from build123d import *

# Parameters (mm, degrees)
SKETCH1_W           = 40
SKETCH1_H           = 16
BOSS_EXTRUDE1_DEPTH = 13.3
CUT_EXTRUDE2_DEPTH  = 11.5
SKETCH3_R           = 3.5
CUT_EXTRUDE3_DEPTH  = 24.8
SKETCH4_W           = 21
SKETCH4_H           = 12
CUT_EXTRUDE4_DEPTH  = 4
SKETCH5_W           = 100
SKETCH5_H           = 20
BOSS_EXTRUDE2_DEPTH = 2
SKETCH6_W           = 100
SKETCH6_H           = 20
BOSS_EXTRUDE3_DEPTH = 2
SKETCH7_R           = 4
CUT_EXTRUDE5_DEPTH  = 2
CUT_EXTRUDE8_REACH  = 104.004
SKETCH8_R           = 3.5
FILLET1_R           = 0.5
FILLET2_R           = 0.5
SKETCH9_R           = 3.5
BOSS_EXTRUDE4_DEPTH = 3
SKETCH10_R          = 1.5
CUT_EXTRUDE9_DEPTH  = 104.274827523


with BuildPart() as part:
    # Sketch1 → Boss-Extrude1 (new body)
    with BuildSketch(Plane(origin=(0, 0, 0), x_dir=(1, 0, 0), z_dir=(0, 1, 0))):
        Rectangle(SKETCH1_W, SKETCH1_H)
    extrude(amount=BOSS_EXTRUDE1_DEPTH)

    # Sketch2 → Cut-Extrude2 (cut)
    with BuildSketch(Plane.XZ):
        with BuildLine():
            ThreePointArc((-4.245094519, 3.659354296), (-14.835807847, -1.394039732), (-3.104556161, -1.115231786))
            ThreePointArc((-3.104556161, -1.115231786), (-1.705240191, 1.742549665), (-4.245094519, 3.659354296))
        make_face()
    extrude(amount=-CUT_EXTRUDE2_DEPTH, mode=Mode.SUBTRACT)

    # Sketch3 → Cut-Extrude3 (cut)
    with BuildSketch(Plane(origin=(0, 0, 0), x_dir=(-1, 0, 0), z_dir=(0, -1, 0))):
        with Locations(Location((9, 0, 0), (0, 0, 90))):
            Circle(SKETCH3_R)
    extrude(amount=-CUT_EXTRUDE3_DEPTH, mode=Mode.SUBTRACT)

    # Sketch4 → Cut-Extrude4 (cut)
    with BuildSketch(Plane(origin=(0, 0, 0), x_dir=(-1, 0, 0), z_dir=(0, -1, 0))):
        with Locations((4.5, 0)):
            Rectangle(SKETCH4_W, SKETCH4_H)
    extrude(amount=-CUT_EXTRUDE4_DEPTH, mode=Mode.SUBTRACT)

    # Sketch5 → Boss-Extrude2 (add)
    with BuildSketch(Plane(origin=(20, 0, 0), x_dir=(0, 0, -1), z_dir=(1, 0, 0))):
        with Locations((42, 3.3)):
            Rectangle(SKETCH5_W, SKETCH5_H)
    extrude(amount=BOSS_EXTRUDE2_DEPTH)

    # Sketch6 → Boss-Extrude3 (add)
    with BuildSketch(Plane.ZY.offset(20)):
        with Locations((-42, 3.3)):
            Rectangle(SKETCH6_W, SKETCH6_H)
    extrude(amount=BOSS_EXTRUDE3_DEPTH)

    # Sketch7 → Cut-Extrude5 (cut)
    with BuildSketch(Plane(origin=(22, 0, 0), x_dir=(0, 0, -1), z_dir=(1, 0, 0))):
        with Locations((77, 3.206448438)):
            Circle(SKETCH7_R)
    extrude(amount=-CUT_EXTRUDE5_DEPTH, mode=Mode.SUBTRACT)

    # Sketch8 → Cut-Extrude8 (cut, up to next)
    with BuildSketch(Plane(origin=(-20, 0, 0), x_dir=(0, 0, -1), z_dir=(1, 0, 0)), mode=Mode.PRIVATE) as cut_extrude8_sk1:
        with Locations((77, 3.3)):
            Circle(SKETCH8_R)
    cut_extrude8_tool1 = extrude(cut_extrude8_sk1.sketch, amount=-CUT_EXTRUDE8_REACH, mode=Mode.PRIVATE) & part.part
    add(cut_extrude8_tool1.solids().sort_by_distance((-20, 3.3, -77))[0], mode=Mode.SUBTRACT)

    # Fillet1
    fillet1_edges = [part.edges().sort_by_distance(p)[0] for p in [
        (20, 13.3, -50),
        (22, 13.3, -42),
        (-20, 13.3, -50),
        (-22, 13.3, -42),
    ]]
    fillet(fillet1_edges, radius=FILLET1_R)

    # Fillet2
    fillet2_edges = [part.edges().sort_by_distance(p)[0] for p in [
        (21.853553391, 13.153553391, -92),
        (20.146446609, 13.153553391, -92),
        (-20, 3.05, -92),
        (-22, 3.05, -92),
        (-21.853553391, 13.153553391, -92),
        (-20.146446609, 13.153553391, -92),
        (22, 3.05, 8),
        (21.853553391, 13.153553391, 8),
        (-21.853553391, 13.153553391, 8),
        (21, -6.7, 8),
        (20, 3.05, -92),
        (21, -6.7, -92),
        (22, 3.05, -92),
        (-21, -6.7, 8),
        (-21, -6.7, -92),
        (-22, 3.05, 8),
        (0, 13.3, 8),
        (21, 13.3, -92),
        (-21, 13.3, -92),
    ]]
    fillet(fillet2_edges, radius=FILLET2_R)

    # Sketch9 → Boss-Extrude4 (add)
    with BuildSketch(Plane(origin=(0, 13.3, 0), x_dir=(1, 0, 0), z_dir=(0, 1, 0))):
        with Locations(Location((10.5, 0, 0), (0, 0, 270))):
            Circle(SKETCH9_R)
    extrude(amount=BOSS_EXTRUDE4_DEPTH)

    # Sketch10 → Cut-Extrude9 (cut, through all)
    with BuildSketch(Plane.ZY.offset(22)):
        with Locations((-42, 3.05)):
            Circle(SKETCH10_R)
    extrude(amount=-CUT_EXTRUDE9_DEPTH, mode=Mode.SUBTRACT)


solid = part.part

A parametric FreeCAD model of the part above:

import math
import FreeCAD as App
import Part
import Sketcher


def edges_at(feature, points):
    """Names of the edges that pass closest to the given points."""
    edges = feature.Shape.Edges
    near = lambda p: min(range(len(edges)), key=lambda i: edges[i].distToShape(Part.Vertex(*p))[0])
    return sorted({f"Edge{near(p) + 1}" for p in points})


def add_polygon(sketch, points):
    """Adds a closed chain of lines whose ends are joined by coincident constraints."""
    first, n = sketch.GeometryCount, len(points)
    for a, b in zip(points, points[1:] + points[:1]):
        sketch.addGeometry(Part.LineSegment(App.Vector(*a, 0), App.Vector(*b, 0)), False)
    for i in range(n):
        sketch.addConstraint(Sketcher.Constraint("Coincident", first + i, 2, first + (i + 1) % n, 1))

doc = App.newDocument("Part")
body = doc.addObject("PartDesign::Body", "Body")

# Sketch on XZ plane
sketch1 = doc.addObject("Sketcher::SketchObject", "Sketch")
body.addObject(sketch1)
sketch1.AttachmentSupport = (doc.XZ_Plane, [""])
sketch1.MapMode = "FlatFace"
add_polygon(sketch1, [(-20, -8), (-20, 8), (20, 8), (20, -8)])  # lines 0-3
sketch1.addConstraint([
    Sketcher.Constraint("Vertical", 0),
    Sketcher.Constraint("Horizontal", 1),
    Sketcher.Constraint("Vertical", 2),
    Sketcher.Constraint("Horizontal", 3),
    Sketcher.Constraint("Symmetric", 0, 2, 2, 2, -1, 1),
    Sketcher.Constraint("DistanceX", 1, 1, 1, 2, 40.0),
    Sketcher.Constraint("DistanceY", 0, 1, 0, 2, 16.0),
])
pad1 = doc.addObject("PartDesign::Pad", "Pad")
body.addObject(pad1)
pad1.Profile = sketch1
pad1.Length = 13.3
pad1.Reversed = True

# Sketch on XZ plane
sketch2 = doc.addObject("Sketcher::SketchObject", "Sketch001")
body.addObject(sketch2)
sketch2.AttachmentSupport = (doc.XZ_Plane, [""])
sketch2.MapMode = "FlatFace"
sketch2.addGeometry([
    Part.ArcOfCircle(Part.Circle(App.Vector(-9, 0, 0), App.Vector(0, 0, 1), 6), math.radians(38), math.radians(349)),
    Part.ArcOfCircle(Part.Circle(App.Vector(-4.1, 1.2, 0), App.Vector(0, 0, 1), 2.5), math.radians(-66), math.radians(92)),
], False)
sketch2.addConstraint([
    Sketcher.Constraint("Coincident", 0, 1, 1, 2),
    Sketcher.Constraint("Coincident", 1, 1, 0, 2),
    Sketcher.Constraint("PointOnObject", 0, 3, -1),
    Sketcher.Constraint("Radius", 0, 6.0),
    Sketcher.Constraint("Radius", 1, 2.5),
    Sketcher.Constraint("DistanceX", 0, 3, -1, 1, 9.0),
    Sketcher.Constraint("DistanceY", -1, 1, 1, 3, 1.1617),
    Sketcher.Constraint("DistanceY", 1, 1, -1, 1, 1.115232),
])
pocket1 = doc.addObject("PartDesign::Pocket", "Pocket")
body.addObject(pocket1)
pocket1.Profile = sketch2
pocket1.Length = 11.5

# Sketch on XZ plane
sketch3 = doc.addObject("Sketcher::SketchObject", "Sketch002")
body.addObject(sketch3)
sketch3.AttachmentSupport = (doc.XZ_Plane, [""])
sketch3.MapMode = "FlatFace"
sketch3.addGeometry(Part.Circle(App.Vector(-9, 0, 0), App.Vector(0, 0, 1), 3.5), False)
sketch3.addConstraint([
    Sketcher.Constraint("PointOnObject", 0, 3, -1),
    Sketcher.Constraint("Diameter", 0, 7.0),
    Sketcher.Constraint("DistanceX", 0, 3, -1, 1, 9.0),
])
pocket2 = doc.addObject("PartDesign::Pocket", "Pocket001")
body.addObject(pocket2)
pocket2.Profile = sketch3
pocket2.Length = 24.8

# Sketch on XZ plane
sketch4 = doc.addObject("Sketcher::SketchObject", "Sketch003")
body.addObject(sketch4)
sketch4.AttachmentSupport = (doc.XZ_Plane, [""])
sketch4.MapMode = "FlatFace"
add_polygon(sketch4, [(6, -6), (6, 6), (-15, 6), (-15, -6)])  # lines 0-3
sketch4.addConstraint([
    Sketcher.Constraint("Vertical", 0),
    Sketcher.Constraint("Horizontal", 1),
    Sketcher.Constraint("Vertical", 2),
    Sketcher.Constraint("Horizontal", 3),
    Sketcher.Constraint("DistanceX", 1, 2, 1, 1, 21.0),
    Sketcher.Constraint("DistanceY", 0, 1, 0, 2, 12.0),
    Sketcher.Constraint("DistanceX", -1, 1, 0, 2, 6.0),
    Sketcher.Constraint("DistanceY", -1, 1, 0, 2, 6.0),
])
pocket3 = doc.addObject("PartDesign::Pocket", "Pocket002")
body.addObject(pocket3)
pocket3.Profile = sketch4
pocket3.Length = 4

# Sketch on YZ plane
sketch5 = doc.addObject("Sketcher::SketchObject", "Sketch004")
body.addObject(sketch5)
sketch5.AttachmentSupport = (doc.YZ_Plane, [""])
sketch5.MapMode = "FlatFace"
sketch5.AttachmentOffset = App.Placement(App.Vector(0, 0, 20), App.Rotation())
add_polygon(sketch5, [(13, 8), (-7, 8), (-7, -92), (13, -92)])  # lines 0-3
sketch5.addConstraint([
    Sketcher.Constraint("Horizontal", 0),
    Sketcher.Constraint("Vertical", 1),
    Sketcher.Constraint("Horizontal", 2),
    Sketcher.Constraint("Vertical", 3),
    Sketcher.Constraint("DistanceX", 0, 2, 0, 1, 20.0),
    Sketcher.Constraint("DistanceY", 1, 2, 1, 1, 100.0),
    Sketcher.Constraint("DistanceY", -1, 1, 0, 2, 8.0),
    Sketcher.Constraint("DistanceX", 0, 2, -1, 1, 6.7),
])
pad2 = doc.addObject("PartDesign::Pad", "Pad001")
body.addObject(pad2)
pad2.Profile = sketch5
pad2.Length = 2

# Sketch on YZ plane
sketch6 = doc.addObject("Sketcher::SketchObject", "Sketch005")
body.addObject(sketch6)
sketch6.AttachmentSupport = (doc.YZ_Plane, [""])
sketch6.MapMode = "FlatFace"
sketch6.AttachmentOffset = App.Placement(App.Vector(0, 0, -20), App.Rotation())
add_polygon(sketch6, [(13, -92), (-7, -92), (-7, 8), (13, 8)])  # lines 0-3
sketch6.addConstraint([
    Sketcher.Constraint("Horizontal", 0),
    Sketcher.Constraint("Vertical", 1),
    Sketcher.Constraint("Horizontal", 2),
    Sketcher.Constraint("Vertical", 3),
    Sketcher.Constraint("DistanceX", 0, 2, 0, 1, 20.0),
    Sketcher.Constraint("DistanceY", 1, 1, 1, 2, 100.0),
    Sketcher.Constraint("DistanceY", 0, 2, -1, 1, 92.0),
    Sketcher.Constraint("DistanceX", 0, 2, -1, 1, 6.7),
])
pad3 = doc.addObject("PartDesign::Pad", "Pad002")
body.addObject(pad3)
pad3.Profile = sketch6
pad3.Length = 2
pad3.Reversed = True

# Sketch on YZ plane
sketch7 = doc.addObject("Sketcher::SketchObject", "Sketch006")
body.addObject(sketch7)
sketch7.AttachmentSupport = (doc.YZ_Plane, [""])
sketch7.MapMode = "FlatFace"
sketch7.AttachmentOffset = App.Placement(App.Vector(0, 0, 22), App.Rotation())
sketch7.addGeometry(Part.Circle(App.Vector(3.2, -77, 0), App.Vector(0, 0, 1), 4), False)
sketch7.addConstraint([
    Sketcher.Constraint("Diameter", 0, 8.0),
    Sketcher.Constraint("DistanceY", 0, 3, -1, 1, 77.0),
    Sketcher.Constraint("DistanceX", -1, 1, 0, 3, 3.206448),
])
pocket4 = doc.addObject("PartDesign::Pocket", "Pocket003")
body.addObject(pocket4)
pocket4.Profile = sketch7
pocket4.Length = 2

# Sketch on YZ plane
sketch8 = doc.addObject("Sketcher::SketchObject", "Sketch007")
body.addObject(sketch8)
sketch8.AttachmentSupport = (doc.YZ_Plane, [""])
sketch8.MapMode = "FlatFace"
sketch8.AttachmentOffset = App.Placement(App.Vector(0, 0, -20), App.Rotation())
sketch8.addGeometry(Part.Circle(App.Vector(3.3, -77, 0), App.Vector(0, 0, 1), 3.5), False)
sketch8.addConstraint([
    Sketcher.Constraint("Diameter", 0, 7.0),
    Sketcher.Constraint("DistanceY", 0, 3, -1, 1, 77.0),
    Sketcher.Constraint("DistanceX", -1, 1, 0, 3, 3.3),
])
pocket5 = doc.addObject("PartDesign::Pocket", "Pocket004")
body.addObject(pocket5)
pocket5.Profile = sketch8
pocket5.Type = "UpToFirst"
doc.recompute()

fillet = doc.addObject("PartDesign::Fillet", "Fillet")
body.addObject(fillet)
fillet.Base = (pocket5, edges_at(pocket5, [
    (20, 13.3, -50),
    (22, 13.3, -42),
    (-20, 13.3, -50),
    (-22, 13.3, -42),
]))
fillet.Radius = 0.5
doc.recompute()

fillet2 = doc.addObject("PartDesign::Fillet", "Fillet001")
body.addObject(fillet2)
fillet2.Base = (fillet, edges_at(fillet, [
    (21.854, 13.154, -92),
    (20.146, 13.154, -92),
    (-20, 3.05, -92),
    (-22, 3.05, -92),
    (-21.854, 13.154, -92),
    (-20.146, 13.154, -92),
    (22, 3.05, 8),
    (21.854, 13.154, 8),
    (-21.854, 13.154, 8),
    (21, -6.7, 8),
    (20, 3.05, -92),
    (21, -6.7, -92),
    (22, 3.05, -92),
    (-21, -6.7, 8),
    (-21, -6.7, -92),
    (-22, 3.05, 8),
    (0, 13.3, 8),
    (21, 13.3, -92),
    (-21, 13.3, -92),
]))
fillet2.Radius = 0.5

# Sketch on XZ plane
sketch9 = doc.addObject("Sketcher::SketchObject", "Sketch008")
body.addObject(sketch9)
sketch9.AttachmentSupport = (doc.XZ_Plane, [""])
sketch9.MapMode = "FlatFace"
sketch9.AttachmentOffset = App.Placement(App.Vector(0, 0, -13.3), App.Rotation())
sketch9.addGeometry(Part.Circle(App.Vector(10.5, 0, 0), App.Vector(0, 0, 1), 3.5), False)
sketch9.addConstraint([
    Sketcher.Constraint("PointOnObject", 0, 3, -1),
    Sketcher.Constraint("Diameter", 0, 7.0),
    Sketcher.Constraint("DistanceX", -1, 1, 0, 3, 10.5),
])
pad4 = doc.addObject("PartDesign::Pad", "Pad003")
body.addObject(pad4)
pad4.Profile = sketch9
pad4.Length = 3
pad4.Reversed = True

# Sketch on YZ plane
sketch10 = doc.addObject("Sketcher::SketchObject", "Sketch009")
body.addObject(sketch10)
sketch10.AttachmentSupport = (doc.YZ_Plane, [""])
sketch10.MapMode = "FlatFace"
sketch10.AttachmentOffset = App.Placement(App.Vector(0, 0, -22), App.Rotation())
sketch10.addGeometry(Part.Circle(App.Vector(3, -42, 0), App.Vector(0, 0, 1), 1.5), False)
sketch10.addConstraint([
    Sketcher.Constraint("Diameter", 0, 3.0),
    Sketcher.Constraint("DistanceY", 0, 3, -1, 1, 42.0),
    Sketcher.Constraint("DistanceX", -1, 1, 0, 3, 3.05),
])
pocket6 = doc.addObject("PartDesign::Pocket", "Pocket005")
body.addObject(pocket6)
pocket6.Profile = sketch10
pocket6.Type = "ThroughAll"
pocket6.Reversed = True

doc.recompute()
